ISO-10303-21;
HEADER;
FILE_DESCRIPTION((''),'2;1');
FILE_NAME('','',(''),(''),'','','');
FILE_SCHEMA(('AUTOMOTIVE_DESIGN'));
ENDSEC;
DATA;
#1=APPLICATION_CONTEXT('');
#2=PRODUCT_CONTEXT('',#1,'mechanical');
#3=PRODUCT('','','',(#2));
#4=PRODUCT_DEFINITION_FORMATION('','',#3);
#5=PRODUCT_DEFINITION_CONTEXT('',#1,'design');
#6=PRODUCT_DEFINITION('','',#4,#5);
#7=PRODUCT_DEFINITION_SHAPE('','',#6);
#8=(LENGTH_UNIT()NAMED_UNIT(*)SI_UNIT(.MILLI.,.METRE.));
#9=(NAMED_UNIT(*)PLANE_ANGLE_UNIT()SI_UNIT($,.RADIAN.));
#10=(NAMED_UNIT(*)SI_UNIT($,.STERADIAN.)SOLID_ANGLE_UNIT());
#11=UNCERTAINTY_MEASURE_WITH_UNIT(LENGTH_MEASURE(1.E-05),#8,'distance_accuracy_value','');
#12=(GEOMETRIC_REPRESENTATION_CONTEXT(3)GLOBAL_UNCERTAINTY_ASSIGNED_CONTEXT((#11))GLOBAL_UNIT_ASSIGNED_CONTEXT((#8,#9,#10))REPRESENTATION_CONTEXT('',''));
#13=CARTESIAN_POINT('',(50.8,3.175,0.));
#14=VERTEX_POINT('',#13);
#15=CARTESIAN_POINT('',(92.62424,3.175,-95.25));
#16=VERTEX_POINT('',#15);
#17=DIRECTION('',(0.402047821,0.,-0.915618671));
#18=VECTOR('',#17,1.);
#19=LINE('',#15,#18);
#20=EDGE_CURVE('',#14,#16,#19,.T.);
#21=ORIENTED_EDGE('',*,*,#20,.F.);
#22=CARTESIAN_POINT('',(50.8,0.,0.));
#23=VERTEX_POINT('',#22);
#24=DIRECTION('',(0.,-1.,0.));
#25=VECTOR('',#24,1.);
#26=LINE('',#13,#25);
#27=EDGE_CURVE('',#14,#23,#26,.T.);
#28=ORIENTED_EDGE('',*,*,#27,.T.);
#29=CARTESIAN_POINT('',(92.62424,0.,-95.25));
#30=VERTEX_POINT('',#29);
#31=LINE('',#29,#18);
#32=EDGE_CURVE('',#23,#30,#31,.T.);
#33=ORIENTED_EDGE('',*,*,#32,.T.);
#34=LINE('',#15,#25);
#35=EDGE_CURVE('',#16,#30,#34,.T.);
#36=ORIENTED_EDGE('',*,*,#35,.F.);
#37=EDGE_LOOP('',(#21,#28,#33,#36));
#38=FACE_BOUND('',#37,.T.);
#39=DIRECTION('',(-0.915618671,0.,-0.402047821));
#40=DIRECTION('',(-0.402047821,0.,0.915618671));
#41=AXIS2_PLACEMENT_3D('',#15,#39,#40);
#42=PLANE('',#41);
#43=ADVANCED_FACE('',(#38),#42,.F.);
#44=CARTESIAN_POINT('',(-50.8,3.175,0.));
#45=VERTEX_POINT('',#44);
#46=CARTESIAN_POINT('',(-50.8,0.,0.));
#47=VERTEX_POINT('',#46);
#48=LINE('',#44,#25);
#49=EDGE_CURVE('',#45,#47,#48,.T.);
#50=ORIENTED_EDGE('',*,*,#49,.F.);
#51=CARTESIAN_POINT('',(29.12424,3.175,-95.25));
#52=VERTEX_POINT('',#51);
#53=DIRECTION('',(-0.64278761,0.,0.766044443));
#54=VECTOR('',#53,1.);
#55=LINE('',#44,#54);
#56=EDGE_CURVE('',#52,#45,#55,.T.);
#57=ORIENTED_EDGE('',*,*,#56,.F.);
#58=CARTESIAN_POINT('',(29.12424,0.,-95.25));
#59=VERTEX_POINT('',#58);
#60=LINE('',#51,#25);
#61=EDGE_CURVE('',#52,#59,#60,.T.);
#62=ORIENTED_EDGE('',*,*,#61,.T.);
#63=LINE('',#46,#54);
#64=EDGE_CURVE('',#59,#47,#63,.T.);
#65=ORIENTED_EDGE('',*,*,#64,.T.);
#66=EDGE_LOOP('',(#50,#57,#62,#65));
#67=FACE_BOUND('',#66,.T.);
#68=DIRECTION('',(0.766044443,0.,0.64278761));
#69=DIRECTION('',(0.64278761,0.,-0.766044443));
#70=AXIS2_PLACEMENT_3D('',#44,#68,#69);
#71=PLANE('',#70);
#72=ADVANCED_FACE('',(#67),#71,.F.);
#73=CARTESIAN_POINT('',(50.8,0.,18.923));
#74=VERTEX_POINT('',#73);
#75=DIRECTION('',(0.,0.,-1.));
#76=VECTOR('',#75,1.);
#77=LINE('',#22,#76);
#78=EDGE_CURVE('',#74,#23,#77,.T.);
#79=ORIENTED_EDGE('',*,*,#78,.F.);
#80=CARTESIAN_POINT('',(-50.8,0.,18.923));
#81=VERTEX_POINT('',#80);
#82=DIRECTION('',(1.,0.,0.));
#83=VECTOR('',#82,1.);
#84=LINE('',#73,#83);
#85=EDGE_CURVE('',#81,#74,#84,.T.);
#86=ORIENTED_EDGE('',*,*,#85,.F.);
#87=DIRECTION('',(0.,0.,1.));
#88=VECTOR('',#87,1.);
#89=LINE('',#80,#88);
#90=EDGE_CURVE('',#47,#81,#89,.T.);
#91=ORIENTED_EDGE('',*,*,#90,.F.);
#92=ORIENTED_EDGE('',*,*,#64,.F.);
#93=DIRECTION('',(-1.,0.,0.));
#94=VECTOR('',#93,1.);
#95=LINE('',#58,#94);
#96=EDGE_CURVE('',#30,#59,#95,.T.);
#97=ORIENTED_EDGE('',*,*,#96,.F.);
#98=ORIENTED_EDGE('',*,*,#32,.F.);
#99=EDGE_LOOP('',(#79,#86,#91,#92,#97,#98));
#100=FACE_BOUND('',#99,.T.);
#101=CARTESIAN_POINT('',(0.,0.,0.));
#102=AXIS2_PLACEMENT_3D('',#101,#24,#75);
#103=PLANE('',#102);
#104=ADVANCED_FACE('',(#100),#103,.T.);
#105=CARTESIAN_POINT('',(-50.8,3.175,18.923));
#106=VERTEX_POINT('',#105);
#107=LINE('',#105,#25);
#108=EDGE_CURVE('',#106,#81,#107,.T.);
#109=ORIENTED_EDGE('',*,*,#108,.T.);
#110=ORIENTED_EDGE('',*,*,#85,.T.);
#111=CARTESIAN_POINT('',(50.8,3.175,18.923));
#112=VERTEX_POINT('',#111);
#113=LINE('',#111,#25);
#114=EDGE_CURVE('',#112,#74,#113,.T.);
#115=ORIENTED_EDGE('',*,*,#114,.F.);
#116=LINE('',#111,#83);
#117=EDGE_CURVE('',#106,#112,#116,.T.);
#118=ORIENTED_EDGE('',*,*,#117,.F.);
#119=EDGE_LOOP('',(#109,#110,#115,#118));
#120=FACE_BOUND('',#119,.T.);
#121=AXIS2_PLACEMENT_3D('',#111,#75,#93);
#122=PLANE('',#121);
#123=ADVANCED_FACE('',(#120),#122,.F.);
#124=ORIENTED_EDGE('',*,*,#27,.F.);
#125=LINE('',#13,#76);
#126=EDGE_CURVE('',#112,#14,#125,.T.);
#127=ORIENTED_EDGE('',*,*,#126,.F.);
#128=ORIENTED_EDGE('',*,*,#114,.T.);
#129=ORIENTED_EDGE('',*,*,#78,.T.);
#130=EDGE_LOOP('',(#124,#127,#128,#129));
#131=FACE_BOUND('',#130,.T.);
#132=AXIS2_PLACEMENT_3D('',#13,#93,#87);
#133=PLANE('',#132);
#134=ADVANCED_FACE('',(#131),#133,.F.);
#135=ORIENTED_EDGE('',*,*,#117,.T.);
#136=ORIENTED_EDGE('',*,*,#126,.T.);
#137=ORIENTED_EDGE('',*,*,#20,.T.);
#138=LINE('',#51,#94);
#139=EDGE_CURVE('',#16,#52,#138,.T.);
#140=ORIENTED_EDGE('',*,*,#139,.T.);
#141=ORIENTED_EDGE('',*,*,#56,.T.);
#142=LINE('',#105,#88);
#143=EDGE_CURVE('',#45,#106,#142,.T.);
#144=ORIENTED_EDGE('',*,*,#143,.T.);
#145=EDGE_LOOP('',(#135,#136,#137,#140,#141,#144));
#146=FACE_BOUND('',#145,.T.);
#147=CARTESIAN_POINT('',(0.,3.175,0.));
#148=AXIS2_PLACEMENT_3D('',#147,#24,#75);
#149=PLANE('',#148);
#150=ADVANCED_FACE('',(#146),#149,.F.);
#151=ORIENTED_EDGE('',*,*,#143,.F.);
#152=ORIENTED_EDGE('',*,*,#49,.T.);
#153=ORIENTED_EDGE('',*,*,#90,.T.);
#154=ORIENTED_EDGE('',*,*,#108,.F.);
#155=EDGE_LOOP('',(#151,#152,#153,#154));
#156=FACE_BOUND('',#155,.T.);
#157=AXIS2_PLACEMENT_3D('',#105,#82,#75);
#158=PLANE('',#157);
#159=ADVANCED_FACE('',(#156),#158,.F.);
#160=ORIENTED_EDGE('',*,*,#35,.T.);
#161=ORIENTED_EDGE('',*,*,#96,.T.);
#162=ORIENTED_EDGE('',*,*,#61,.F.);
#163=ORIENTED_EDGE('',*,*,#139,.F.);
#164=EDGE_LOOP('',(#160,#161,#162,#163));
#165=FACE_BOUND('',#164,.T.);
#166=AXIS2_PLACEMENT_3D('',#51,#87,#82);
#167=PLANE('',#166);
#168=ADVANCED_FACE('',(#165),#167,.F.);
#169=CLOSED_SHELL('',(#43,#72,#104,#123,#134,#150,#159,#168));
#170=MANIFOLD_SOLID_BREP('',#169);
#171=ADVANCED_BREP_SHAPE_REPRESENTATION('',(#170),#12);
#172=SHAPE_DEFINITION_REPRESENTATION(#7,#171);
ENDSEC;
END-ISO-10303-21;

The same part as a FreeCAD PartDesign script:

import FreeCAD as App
import Part
import Sketcher
Q = App.Units.Quantity


def add_polygon(sketch, points):
    """Adds a closed chain of lines whose ends are joined by coincident constraints."""
    first, n = sketch.GeometryCount, len(points)
    for a, b in zip(points, points[1:] + points[:1]):
        sketch.addGeometry(Part.LineSegment(App.Vector(*a, 0), App.Vector(*b, 0)), False)
    for i in range(n):
        sketch.addConstraint(Sketcher.Constraint("Coincident", first + i, 2, first + (i + 1) % n, 1))

doc = App.newDocument("Part")
body = doc.addObject("PartDesign::Body", "Body")

sketch1 = body.newObject("Sketcher::SketchObject", "Sketch")
sketch1.AttachmentSupport = (doc.getObject("XZ_Plane"), [""])
sketch1.MapMode = "FlatFace"
add_polygon(sketch1, [(29, -95), (-51, 0), (-51, 19), (51, 19), (51, 0), (93, -95)])
sketch1.addConstraint([
    Sketcher.Constraint("Vertical", 1),
    Sketcher.Constraint("Horizontal", 2),
    Sketcher.Constraint("Vertical", 3),
    Sketcher.Constraint("Horizontal", 5),
    Sketcher.Constraint("Symmetric", 0, 2, 3, 2, -1, 1),
    Sketcher.Constraint("PointOnObject", 0, 2, -1),
    Sketcher.Constraint("DistanceX", 2, 1, 2, 2, Q("4 in")),
    Sketcher.Constraint("DistanceX", 5, 2, 5, 1, Q("2.5 in")),
    Sketcher.Constraint("Angle", 0, Q("130 deg")),
    Sketcher.Constraint("DistanceY", 1, 1, 1, 2, Q("0.745 in")),
    Sketcher.Constraint("DistanceY", 4, 2, -1, 1, Q("3.75 in")),
])
pad1 = body.newObject("PartDesign::Pad", "Pad")
pad1.Profile = sketch1
pad1.Length = Q("0.125 in")
pad1.Reversed = True

doc.recompute()
